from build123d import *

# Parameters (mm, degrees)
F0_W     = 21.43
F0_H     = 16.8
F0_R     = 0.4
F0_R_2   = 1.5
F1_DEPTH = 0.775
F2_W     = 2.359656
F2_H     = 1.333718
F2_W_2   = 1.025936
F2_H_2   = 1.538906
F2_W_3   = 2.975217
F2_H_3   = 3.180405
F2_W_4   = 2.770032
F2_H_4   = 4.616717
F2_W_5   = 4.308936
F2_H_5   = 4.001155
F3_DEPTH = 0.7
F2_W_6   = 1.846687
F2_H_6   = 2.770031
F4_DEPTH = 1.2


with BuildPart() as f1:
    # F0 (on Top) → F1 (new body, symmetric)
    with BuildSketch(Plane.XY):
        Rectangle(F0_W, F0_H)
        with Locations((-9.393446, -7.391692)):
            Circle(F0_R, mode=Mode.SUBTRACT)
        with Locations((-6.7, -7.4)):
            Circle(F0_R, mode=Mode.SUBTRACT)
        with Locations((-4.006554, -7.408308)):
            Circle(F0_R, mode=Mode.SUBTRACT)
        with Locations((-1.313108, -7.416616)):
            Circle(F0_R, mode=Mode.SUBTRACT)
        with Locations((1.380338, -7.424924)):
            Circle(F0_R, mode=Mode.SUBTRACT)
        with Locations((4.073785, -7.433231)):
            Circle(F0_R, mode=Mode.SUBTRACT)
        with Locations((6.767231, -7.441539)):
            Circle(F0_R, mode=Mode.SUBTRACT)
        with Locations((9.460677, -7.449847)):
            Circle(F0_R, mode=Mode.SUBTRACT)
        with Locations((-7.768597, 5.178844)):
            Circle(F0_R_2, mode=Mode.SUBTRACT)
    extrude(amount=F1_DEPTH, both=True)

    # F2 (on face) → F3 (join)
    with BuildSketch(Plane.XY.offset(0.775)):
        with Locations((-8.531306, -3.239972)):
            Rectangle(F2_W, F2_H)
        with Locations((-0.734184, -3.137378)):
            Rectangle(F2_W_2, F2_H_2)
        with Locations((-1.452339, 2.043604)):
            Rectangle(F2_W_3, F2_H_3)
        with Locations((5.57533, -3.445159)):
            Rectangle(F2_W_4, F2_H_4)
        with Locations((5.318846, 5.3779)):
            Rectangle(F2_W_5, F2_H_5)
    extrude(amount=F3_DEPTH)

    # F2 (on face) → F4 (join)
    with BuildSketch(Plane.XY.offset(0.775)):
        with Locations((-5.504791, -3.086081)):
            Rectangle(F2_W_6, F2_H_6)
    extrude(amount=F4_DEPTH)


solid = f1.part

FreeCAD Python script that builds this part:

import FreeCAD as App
import Part
import Sketcher
from FreeCAD import Vector

doc = App.newDocument("Part")
params = doc.addObject("Spreadsheet::Sheet", "Params")
for row, (alias, value) in enumerate([
    ("sketch1_diameter", "3 mm"),
    ("sketch1_diameter2", "0.8 mm"),
    ("sketch1_height", "16.8 mm"),
    ("sketch1_width", "21.43 mm"),
    ("pad1_length", "1.55 mm"),
    ("pad2_length", "0.7 mm"),
    ("pad3_length", "1.2 mm"),
], start=1):
    params.set(f"A{row}", alias)
    params.set(f"B{row}", "=" + value)
    params.setAlias(f"B{row}", alias)

body = doc.addObject("PartDesign::Body", "Body")

sketch1 = body.newObject("Sketcher::SketchObject", "Sketch")
sketch1.AttachmentSupport = (doc.getObject("XY_Plane"), [""])
sketch1.MapMode = "FlatFace"
sketch1.addGeometry([
    Part.LineSegment(Vector(-10.71, 8.4, 0), Vector(-10.71, -8.4, 0)),
    Part.LineSegment(Vector(-10.71, -8.4, 0), Vector(10.71, -8.4, 0)),
    Part.LineSegment(Vector(10.71, -8.4, 0), Vector(10.71, 8.4, 0)),
    Part.LineSegment(Vector(10.71, 8.4, 0), Vector(-10.71, 8.4, 0)),
    Part.Circle(Vector(-9.39, -7.39, 0), Vector(0, 0, 1), 0.4),
    Part.Circle(Vector(-6.7, -7.4, 0), Vector(0, 0, 1), 0.4),
    Part.Circle(Vector(-4.01, -7.41, 0), Vector(0, 0, 1), 0.4),
    Part.Circle(Vector(-1.31, -7.42, 0), Vector(0, 0, 1), 0.4),
    Part.Circle(Vector(1.38, -7.42, 0), Vector(0, 0, 1), 0.4),
    Part.Circle(Vector(4.07, -7.43, 0), Vector(0, 0, 1), 0.4),
    Part.Circle(Vector(6.77, -7.44, 0), Vector(0, 0, 1), 0.4),
    Part.Circle(Vector(9.46, -7.45, 0), Vector(0, 0, 1), 0.4),
    Part.Circle(Vector(-7.77, 5.18, 0), Vector(0, 0, 1), 1.5),
], False)
sketch1.addConstraint([
    Sketcher.Constraint("Coincident", 0, 2, 1, 1),
    Sketcher.Constraint("Coincident", 1, 2, 2, 1),
    Sketcher.Constraint("Coincident", 2, 2, 3, 1),
    Sketcher.Constraint("Coincident", 3, 2, 0, 1),
    Sketcher.Constraint("Vertical", 0),
    Sketcher.Constraint("Horizontal", 1),
    Sketcher.Constraint("Vertical", 2),
    Sketcher.Constraint("Horizontal", 3),
    Sketcher.Constraint("Equal", 4, 5),
    Sketcher.Constraint("Equal", 5, 6),
    Sketcher.Constraint("Equal", 6, 7),
    Sketcher.Constraint("Equal", 7, 8),
    Sketcher.Constraint("Equal", 8, 9),
    Sketcher.Constraint("Equal", 9, 10),
    Sketcher.Constraint("Equal", 10, 11),
    Sketcher.Constraint("Symmetric", 0, 2, 2, 2, -1, 1),
    Sketcher.Constraint("Diameter", 12, 3.0),
    Sketcher.Constraint("Diameter", 4, 0.8),
    Sketcher.Constraint("DistanceY", 0, 2, 0, 1, 16.8),
    Sketcher.Constraint("DistanceY", 0, 2, 5, 3, 1.0),
    Sketcher.Constraint("DistanceX", 1, 1, 1, 2, 21.43),
    Sketcher.Constraint("DistanceX", 5, 3, -1, 1, 6.7),
    Sketcher.Constraint("DistanceX", -1, 1, 8, 3, 1.380338),
    Sketcher.Constraint("DistanceY", 9, 3, -1, 1, 7.433231),
    Sketcher.Constraint("DistanceX", -1, 1, 10, 3, 6.767231),
    Sketcher.Constraint("DistanceY", 10, 3, -1, 1, 7.441539),
    Sketcher.Constraint("DistanceY", 5, 3, 4, 3, 0.008308),
    Sketcher.Constraint("DistanceY", 7, 3, 6, 3, 0.008308),
    Sketcher.Constraint("DistanceX", 4, 3, 7, 3, 8.080338),
    Sketcher.Constraint("DistanceY", 8, 3, 4, 3, 0.033232),
    Sketcher.Constraint("DistanceX", 6, 3, 9, 3, 8.080339),
    Sketcher.Constraint("DistanceX", 4, 3, 9, 3, 13.467231),
    Sketcher.Constraint("DistanceX", 7, 3, 10, 3, 8.080339),
    Sketcher.Constraint("DistanceY", 10, 3, 6, 3, 0.033231),
    Sketcher.Constraint("DistanceY", 11, 3, 10, 3, 0.008308),
    Sketcher.Constraint("DistanceX", 8, 3, 11, 3, 8.080339),
    Sketcher.Constraint("DistanceX", 4, 3, 12, 3, 1.624849),
    Sketcher.Constraint("DistanceY", 7, 3, 12, 3, 12.59546),
])
sketch1.setExpression("Constraints[16]", "Params.sketch1_diameter")
sketch1.setExpression("Constraints[17]", "Params.sketch1_diameter2")
sketch1.setExpression("Constraints[18]", "Params.sketch1_height")
sketch1.setExpression("Constraints[20]", "Params.sketch1_width")
pad1 = body.newObject("PartDesign::Pad", "Pad")
pad1.Profile = sketch1
pad1.setExpression("Length", "Params.pad1_length")
pad1.Midplane = True

sketch2 = body.newObject("Sketcher::SketchObject", "Sketch001")
sketch2.AttachmentSupport = (doc.getObject("XY_Plane"), [""])
sketch2.MapMode = "FlatFace"
sketch2.AttachmentOffset = App.Placement(Vector(0, 0, 0.775), App.Rotation())
sketch2.addGeometry([
    Part.LineSegment(Vector(-9.7, -2.6, 0), Vector(-9.7, -3.9, 0)),
    Part.LineSegment(Vector(-9.7, -3.9, 0), Vector(-7.4, -3.9, 0)),
    Part.LineSegment(Vector(-7.4, -3.9, 0), Vector(-7.4, -2.6, 0)),
    Part.LineSegment(Vector(-7.4, -2.6, 0), Vector(-9.7, -2.6, 0)),
    Part.LineSegment(Vector(-1.2, -2.4, 0), Vector(-1.2, -3.9, 0)),
    Part.LineSegment(Vector(-1.2, -3.9, 0), Vector(-0.2, -3.9, 0)),
    Part.LineSegment(Vector(-0.2, -3.9, 0), Vector(-0.2, -2.4, 0)),
    Part.LineSegment(Vector(-0.2, -2.4, 0), Vector(-1.2, -2.4, 0)),
    Part.LineSegment(Vector(-2.9, 3.6, 0), Vector(-2.9, 0.5, 0)),
    Part.LineSegment(Vector(-2.9, 0.5, 0), Vector(0, 0.5, 0)),
    Part.LineSegment(Vector(0, 0.5, 0), Vector(0, 3.6, 0)),
    Part.LineSegment(Vector(0, 3.6, 0), Vector(-2.9, 3.6, 0)),
    Part.LineSegment(Vector(4.2, -1.1, 0), Vector(4.2, -5.8, 0)),
    Part.LineSegment(Vector(4.2, -5.8, 0), Vector(7, -5.8, 0)),
    Part.LineSegment(Vector(7, -5.8, 0), Vector(7, -1.1, 0)),
    Part.LineSegment(Vector(7, -1.1, 0), Vector(4.2, -1.1, 0)),
    Part.LineSegment(Vector(3.2, 7.4, 0), Vector(3.2, 3.4, 0)),
    Part.LineSegment(Vector(3.2, 3.4, 0), Vector(7.5, 3.4, 0)),
    Part.LineSegment(Vector(7.5, 3.4, 0), Vector(7.5, 7.4, 0)),
    Part.LineSegment(Vector(7.5, 7.4, 0), Vector(3.2, 7.4, 0)),
], False)
sketch2.addConstraint([
    Sketcher.Constraint("Coincident", 0, 2, 1, 1),
    Sketcher.Constraint("Coincident", 1, 2, 2, 1),
    Sketcher.Constraint("Coincident", 2, 2, 3, 1),
    Sketcher.Constraint("Coincident", 3, 2, 0, 1),
    Sketcher.Constraint("Coincident", 4, 2, 5, 1),
    Sketcher.Constraint("Coincident", 5, 2, 6, 1),
    Sketcher.Constraint("Coincident", 6, 2, 7, 1),
    Sketcher.Constraint("Coincident", 7, 2, 4, 1),
    Sketcher.Constraint("Coincident", 8, 2, 9, 1),
    Sketcher.Constraint("Coincident", 9, 2, 10, 1),
    Sketcher.Constraint("Coincident", 10, 2, 11, 1),
    Sketcher.Constraint("Coincident", 11, 2, 8, 1),
    Sketcher.Constraint("Coincident", 12, 2, 13, 1),
    Sketcher.Constraint("Coincident", 13, 2, 14, 1),
    Sketcher.Constraint("Coincident", 14, 2, 15, 1),
    Sketcher.Constraint("Coincident", 15, 2, 12, 1),
    Sketcher.Constraint("Coincident", 16, 2, 17, 1),
    Sketcher.Constraint("Coincident", 17, 2, 18, 1),
    Sketcher.Constraint("Coincident", 18, 2, 19, 1),
    Sketcher.Constraint("Coincident", 19, 2, 16, 1),
    Sketcher.Constraint("Vertical", 0),
    Sketcher.Constraint("Horizontal", 1),
    Sketcher.Constraint("Vertical", 2),
    Sketcher.Constraint("Horizontal", 3),
    Sketcher.Constraint("Vertical", 4),
    Sketcher.Constraint("Horizontal", 5),
    Sketcher.Constraint("Vertical", 6),
    Sketcher.Constraint("Horizontal", 7),
    Sketcher.Constraint("Vertical", 8),
    Sketcher.Constraint("Horizontal", 9),
    Sketcher.Constraint("Vertical", 10),
    Sketcher.Constraint("Horizontal", 11),
    Sketcher.Constraint("Vertical", 12),
    Sketcher.Constraint("Horizontal", 13),
    Sketcher.Constraint("Vertical", 14),
    Sketcher.Constraint("Horizontal", 15),
    Sketcher.Constraint("Vertical", 16),
    Sketcher.Constraint("Horizontal", 17),
    Sketcher.Constraint("Vertical", 18),
    Sketcher.Constraint("Horizontal", 19),
    Sketcher.Constraint("Horizontal", 1, 2, 4, 2),
    Sketcher.Constraint("DistanceX", 15, 2, 17, 2, 3.283),
    Sketcher.Constraint("DistanceY", -1, 1, 8, 2, 0.453402),
    Sketcher.Constraint("DistanceY", 14, 2, -1, 1, 1.136801),
    Sketcher.Constraint("DistanceX", 4, 2, 13, 2, 8.207498),
    Sketcher.Constraint("DistanceX", 1, 1, 1, 2, 2.359656),
    Sketcher.Constraint("DistanceX", 5, 1, 5, 2, 1.025936),
    Sketcher.Constraint("DistanceX", 9, 1, 9, 2, 2.975217),
    Sketcher.Constraint("DistanceX", 13, 1, 13, 2, 2.770032),
    Sketcher.Constraint("DistanceX", 17, 1, 17, 2, 4.308936),
    Sketcher.Constraint("DistanceY", 0, 2, 0, 1, 1.333718),
    Sketcher.Constraint("DistanceY", 4, 2, 4, 1, 1.538906),
    Sketcher.Constraint("DistanceY", 8, 2, 8, 1, 3.180405),
    Sketcher.Constraint("DistanceY", 12, 2, 12, 1, 4.616717),
    Sketcher.Constraint("DistanceY", 16, 2, 16, 1, 4.001155),
    Sketcher.Constraint("DistanceY", 0, 2, -1, 1, 3.906831),
    Sketcher.Constraint("DistanceX", 1, 2, -1, 1, 7.351478),
    Sketcher.Constraint("DistanceX", -1, 1, 9, 2, 0.03527),
    Sketcher.Constraint("DistanceX", -1, 1, 16, 2, 3.164378),
    Sketcher.Constraint("DistanceY", 9, 2, 16, 2, 2.923921),
])
pad2 = body.newObject("PartDesign::Pad", "Pad001")
pad2.Profile = sketch2
pad2.setExpression("Length", "Params.pad2_length")

sketch3 = body.newObject("Sketcher::SketchObject", "Sketch002")
sketch3.AttachmentSupport = (doc.getObject("XY_Plane"), [""])
sketch3.MapMode = "FlatFace"
sketch3.AttachmentOffset = App.Placement(Vector(0, 0, 0.775), App.Rotation())
sketch3.addGeometry([
    Part.LineSegment(Vector(-6.4, -1.7, 0), Vector(-6.4, -4.5, 0)),
    Part.LineSegment(Vector(-6.4, -4.5, 0), Vector(-4.6, -4.5, 0)),
    Part.LineSegment(Vector(-4.6, -4.5, 0), Vector(-4.6, -1.7, 0)),
    Part.LineSegment(Vector(-4.6, -1.7, 0), Vector(-6.4, -1.7, 0)),
], False)
sketch3.addConstraint([
    Sketcher.Constraint("Coincident", 0, 2, 1, 1),
    Sketcher.Constraint("Coincident", 1, 2, 2, 1),
    Sketcher.Constraint("Coincident", 2, 2, 3, 1),
    Sketcher.Constraint("Coincident", 3, 2, 0, 1),
    Sketcher.Constraint("Vertical", 0),
    Sketcher.Constraint("Horizontal", 1),
    Sketcher.Constraint("Vertical", 2),
    Sketcher.Constraint("Horizontal", 3),
    Sketcher.Constraint("DistanceY", 0, 2, 0, 1, 2.770031),
    Sketcher.Constraint("DistanceX", 1, 1, 1, 2, 1.846687),
    Sketcher.Constraint("DistanceX", 0, 2, -1, 1, 6.428134),
    Sketcher.Constraint("DistanceY", 0, 2, -1, 1, 4.471096),
])
pad3 = body.newObject("PartDesign::Pad", "Pad002")
pad3.Profile = sketch3
pad3.setExpression("Length", "Params.pad3_length")

doc.recompute()
